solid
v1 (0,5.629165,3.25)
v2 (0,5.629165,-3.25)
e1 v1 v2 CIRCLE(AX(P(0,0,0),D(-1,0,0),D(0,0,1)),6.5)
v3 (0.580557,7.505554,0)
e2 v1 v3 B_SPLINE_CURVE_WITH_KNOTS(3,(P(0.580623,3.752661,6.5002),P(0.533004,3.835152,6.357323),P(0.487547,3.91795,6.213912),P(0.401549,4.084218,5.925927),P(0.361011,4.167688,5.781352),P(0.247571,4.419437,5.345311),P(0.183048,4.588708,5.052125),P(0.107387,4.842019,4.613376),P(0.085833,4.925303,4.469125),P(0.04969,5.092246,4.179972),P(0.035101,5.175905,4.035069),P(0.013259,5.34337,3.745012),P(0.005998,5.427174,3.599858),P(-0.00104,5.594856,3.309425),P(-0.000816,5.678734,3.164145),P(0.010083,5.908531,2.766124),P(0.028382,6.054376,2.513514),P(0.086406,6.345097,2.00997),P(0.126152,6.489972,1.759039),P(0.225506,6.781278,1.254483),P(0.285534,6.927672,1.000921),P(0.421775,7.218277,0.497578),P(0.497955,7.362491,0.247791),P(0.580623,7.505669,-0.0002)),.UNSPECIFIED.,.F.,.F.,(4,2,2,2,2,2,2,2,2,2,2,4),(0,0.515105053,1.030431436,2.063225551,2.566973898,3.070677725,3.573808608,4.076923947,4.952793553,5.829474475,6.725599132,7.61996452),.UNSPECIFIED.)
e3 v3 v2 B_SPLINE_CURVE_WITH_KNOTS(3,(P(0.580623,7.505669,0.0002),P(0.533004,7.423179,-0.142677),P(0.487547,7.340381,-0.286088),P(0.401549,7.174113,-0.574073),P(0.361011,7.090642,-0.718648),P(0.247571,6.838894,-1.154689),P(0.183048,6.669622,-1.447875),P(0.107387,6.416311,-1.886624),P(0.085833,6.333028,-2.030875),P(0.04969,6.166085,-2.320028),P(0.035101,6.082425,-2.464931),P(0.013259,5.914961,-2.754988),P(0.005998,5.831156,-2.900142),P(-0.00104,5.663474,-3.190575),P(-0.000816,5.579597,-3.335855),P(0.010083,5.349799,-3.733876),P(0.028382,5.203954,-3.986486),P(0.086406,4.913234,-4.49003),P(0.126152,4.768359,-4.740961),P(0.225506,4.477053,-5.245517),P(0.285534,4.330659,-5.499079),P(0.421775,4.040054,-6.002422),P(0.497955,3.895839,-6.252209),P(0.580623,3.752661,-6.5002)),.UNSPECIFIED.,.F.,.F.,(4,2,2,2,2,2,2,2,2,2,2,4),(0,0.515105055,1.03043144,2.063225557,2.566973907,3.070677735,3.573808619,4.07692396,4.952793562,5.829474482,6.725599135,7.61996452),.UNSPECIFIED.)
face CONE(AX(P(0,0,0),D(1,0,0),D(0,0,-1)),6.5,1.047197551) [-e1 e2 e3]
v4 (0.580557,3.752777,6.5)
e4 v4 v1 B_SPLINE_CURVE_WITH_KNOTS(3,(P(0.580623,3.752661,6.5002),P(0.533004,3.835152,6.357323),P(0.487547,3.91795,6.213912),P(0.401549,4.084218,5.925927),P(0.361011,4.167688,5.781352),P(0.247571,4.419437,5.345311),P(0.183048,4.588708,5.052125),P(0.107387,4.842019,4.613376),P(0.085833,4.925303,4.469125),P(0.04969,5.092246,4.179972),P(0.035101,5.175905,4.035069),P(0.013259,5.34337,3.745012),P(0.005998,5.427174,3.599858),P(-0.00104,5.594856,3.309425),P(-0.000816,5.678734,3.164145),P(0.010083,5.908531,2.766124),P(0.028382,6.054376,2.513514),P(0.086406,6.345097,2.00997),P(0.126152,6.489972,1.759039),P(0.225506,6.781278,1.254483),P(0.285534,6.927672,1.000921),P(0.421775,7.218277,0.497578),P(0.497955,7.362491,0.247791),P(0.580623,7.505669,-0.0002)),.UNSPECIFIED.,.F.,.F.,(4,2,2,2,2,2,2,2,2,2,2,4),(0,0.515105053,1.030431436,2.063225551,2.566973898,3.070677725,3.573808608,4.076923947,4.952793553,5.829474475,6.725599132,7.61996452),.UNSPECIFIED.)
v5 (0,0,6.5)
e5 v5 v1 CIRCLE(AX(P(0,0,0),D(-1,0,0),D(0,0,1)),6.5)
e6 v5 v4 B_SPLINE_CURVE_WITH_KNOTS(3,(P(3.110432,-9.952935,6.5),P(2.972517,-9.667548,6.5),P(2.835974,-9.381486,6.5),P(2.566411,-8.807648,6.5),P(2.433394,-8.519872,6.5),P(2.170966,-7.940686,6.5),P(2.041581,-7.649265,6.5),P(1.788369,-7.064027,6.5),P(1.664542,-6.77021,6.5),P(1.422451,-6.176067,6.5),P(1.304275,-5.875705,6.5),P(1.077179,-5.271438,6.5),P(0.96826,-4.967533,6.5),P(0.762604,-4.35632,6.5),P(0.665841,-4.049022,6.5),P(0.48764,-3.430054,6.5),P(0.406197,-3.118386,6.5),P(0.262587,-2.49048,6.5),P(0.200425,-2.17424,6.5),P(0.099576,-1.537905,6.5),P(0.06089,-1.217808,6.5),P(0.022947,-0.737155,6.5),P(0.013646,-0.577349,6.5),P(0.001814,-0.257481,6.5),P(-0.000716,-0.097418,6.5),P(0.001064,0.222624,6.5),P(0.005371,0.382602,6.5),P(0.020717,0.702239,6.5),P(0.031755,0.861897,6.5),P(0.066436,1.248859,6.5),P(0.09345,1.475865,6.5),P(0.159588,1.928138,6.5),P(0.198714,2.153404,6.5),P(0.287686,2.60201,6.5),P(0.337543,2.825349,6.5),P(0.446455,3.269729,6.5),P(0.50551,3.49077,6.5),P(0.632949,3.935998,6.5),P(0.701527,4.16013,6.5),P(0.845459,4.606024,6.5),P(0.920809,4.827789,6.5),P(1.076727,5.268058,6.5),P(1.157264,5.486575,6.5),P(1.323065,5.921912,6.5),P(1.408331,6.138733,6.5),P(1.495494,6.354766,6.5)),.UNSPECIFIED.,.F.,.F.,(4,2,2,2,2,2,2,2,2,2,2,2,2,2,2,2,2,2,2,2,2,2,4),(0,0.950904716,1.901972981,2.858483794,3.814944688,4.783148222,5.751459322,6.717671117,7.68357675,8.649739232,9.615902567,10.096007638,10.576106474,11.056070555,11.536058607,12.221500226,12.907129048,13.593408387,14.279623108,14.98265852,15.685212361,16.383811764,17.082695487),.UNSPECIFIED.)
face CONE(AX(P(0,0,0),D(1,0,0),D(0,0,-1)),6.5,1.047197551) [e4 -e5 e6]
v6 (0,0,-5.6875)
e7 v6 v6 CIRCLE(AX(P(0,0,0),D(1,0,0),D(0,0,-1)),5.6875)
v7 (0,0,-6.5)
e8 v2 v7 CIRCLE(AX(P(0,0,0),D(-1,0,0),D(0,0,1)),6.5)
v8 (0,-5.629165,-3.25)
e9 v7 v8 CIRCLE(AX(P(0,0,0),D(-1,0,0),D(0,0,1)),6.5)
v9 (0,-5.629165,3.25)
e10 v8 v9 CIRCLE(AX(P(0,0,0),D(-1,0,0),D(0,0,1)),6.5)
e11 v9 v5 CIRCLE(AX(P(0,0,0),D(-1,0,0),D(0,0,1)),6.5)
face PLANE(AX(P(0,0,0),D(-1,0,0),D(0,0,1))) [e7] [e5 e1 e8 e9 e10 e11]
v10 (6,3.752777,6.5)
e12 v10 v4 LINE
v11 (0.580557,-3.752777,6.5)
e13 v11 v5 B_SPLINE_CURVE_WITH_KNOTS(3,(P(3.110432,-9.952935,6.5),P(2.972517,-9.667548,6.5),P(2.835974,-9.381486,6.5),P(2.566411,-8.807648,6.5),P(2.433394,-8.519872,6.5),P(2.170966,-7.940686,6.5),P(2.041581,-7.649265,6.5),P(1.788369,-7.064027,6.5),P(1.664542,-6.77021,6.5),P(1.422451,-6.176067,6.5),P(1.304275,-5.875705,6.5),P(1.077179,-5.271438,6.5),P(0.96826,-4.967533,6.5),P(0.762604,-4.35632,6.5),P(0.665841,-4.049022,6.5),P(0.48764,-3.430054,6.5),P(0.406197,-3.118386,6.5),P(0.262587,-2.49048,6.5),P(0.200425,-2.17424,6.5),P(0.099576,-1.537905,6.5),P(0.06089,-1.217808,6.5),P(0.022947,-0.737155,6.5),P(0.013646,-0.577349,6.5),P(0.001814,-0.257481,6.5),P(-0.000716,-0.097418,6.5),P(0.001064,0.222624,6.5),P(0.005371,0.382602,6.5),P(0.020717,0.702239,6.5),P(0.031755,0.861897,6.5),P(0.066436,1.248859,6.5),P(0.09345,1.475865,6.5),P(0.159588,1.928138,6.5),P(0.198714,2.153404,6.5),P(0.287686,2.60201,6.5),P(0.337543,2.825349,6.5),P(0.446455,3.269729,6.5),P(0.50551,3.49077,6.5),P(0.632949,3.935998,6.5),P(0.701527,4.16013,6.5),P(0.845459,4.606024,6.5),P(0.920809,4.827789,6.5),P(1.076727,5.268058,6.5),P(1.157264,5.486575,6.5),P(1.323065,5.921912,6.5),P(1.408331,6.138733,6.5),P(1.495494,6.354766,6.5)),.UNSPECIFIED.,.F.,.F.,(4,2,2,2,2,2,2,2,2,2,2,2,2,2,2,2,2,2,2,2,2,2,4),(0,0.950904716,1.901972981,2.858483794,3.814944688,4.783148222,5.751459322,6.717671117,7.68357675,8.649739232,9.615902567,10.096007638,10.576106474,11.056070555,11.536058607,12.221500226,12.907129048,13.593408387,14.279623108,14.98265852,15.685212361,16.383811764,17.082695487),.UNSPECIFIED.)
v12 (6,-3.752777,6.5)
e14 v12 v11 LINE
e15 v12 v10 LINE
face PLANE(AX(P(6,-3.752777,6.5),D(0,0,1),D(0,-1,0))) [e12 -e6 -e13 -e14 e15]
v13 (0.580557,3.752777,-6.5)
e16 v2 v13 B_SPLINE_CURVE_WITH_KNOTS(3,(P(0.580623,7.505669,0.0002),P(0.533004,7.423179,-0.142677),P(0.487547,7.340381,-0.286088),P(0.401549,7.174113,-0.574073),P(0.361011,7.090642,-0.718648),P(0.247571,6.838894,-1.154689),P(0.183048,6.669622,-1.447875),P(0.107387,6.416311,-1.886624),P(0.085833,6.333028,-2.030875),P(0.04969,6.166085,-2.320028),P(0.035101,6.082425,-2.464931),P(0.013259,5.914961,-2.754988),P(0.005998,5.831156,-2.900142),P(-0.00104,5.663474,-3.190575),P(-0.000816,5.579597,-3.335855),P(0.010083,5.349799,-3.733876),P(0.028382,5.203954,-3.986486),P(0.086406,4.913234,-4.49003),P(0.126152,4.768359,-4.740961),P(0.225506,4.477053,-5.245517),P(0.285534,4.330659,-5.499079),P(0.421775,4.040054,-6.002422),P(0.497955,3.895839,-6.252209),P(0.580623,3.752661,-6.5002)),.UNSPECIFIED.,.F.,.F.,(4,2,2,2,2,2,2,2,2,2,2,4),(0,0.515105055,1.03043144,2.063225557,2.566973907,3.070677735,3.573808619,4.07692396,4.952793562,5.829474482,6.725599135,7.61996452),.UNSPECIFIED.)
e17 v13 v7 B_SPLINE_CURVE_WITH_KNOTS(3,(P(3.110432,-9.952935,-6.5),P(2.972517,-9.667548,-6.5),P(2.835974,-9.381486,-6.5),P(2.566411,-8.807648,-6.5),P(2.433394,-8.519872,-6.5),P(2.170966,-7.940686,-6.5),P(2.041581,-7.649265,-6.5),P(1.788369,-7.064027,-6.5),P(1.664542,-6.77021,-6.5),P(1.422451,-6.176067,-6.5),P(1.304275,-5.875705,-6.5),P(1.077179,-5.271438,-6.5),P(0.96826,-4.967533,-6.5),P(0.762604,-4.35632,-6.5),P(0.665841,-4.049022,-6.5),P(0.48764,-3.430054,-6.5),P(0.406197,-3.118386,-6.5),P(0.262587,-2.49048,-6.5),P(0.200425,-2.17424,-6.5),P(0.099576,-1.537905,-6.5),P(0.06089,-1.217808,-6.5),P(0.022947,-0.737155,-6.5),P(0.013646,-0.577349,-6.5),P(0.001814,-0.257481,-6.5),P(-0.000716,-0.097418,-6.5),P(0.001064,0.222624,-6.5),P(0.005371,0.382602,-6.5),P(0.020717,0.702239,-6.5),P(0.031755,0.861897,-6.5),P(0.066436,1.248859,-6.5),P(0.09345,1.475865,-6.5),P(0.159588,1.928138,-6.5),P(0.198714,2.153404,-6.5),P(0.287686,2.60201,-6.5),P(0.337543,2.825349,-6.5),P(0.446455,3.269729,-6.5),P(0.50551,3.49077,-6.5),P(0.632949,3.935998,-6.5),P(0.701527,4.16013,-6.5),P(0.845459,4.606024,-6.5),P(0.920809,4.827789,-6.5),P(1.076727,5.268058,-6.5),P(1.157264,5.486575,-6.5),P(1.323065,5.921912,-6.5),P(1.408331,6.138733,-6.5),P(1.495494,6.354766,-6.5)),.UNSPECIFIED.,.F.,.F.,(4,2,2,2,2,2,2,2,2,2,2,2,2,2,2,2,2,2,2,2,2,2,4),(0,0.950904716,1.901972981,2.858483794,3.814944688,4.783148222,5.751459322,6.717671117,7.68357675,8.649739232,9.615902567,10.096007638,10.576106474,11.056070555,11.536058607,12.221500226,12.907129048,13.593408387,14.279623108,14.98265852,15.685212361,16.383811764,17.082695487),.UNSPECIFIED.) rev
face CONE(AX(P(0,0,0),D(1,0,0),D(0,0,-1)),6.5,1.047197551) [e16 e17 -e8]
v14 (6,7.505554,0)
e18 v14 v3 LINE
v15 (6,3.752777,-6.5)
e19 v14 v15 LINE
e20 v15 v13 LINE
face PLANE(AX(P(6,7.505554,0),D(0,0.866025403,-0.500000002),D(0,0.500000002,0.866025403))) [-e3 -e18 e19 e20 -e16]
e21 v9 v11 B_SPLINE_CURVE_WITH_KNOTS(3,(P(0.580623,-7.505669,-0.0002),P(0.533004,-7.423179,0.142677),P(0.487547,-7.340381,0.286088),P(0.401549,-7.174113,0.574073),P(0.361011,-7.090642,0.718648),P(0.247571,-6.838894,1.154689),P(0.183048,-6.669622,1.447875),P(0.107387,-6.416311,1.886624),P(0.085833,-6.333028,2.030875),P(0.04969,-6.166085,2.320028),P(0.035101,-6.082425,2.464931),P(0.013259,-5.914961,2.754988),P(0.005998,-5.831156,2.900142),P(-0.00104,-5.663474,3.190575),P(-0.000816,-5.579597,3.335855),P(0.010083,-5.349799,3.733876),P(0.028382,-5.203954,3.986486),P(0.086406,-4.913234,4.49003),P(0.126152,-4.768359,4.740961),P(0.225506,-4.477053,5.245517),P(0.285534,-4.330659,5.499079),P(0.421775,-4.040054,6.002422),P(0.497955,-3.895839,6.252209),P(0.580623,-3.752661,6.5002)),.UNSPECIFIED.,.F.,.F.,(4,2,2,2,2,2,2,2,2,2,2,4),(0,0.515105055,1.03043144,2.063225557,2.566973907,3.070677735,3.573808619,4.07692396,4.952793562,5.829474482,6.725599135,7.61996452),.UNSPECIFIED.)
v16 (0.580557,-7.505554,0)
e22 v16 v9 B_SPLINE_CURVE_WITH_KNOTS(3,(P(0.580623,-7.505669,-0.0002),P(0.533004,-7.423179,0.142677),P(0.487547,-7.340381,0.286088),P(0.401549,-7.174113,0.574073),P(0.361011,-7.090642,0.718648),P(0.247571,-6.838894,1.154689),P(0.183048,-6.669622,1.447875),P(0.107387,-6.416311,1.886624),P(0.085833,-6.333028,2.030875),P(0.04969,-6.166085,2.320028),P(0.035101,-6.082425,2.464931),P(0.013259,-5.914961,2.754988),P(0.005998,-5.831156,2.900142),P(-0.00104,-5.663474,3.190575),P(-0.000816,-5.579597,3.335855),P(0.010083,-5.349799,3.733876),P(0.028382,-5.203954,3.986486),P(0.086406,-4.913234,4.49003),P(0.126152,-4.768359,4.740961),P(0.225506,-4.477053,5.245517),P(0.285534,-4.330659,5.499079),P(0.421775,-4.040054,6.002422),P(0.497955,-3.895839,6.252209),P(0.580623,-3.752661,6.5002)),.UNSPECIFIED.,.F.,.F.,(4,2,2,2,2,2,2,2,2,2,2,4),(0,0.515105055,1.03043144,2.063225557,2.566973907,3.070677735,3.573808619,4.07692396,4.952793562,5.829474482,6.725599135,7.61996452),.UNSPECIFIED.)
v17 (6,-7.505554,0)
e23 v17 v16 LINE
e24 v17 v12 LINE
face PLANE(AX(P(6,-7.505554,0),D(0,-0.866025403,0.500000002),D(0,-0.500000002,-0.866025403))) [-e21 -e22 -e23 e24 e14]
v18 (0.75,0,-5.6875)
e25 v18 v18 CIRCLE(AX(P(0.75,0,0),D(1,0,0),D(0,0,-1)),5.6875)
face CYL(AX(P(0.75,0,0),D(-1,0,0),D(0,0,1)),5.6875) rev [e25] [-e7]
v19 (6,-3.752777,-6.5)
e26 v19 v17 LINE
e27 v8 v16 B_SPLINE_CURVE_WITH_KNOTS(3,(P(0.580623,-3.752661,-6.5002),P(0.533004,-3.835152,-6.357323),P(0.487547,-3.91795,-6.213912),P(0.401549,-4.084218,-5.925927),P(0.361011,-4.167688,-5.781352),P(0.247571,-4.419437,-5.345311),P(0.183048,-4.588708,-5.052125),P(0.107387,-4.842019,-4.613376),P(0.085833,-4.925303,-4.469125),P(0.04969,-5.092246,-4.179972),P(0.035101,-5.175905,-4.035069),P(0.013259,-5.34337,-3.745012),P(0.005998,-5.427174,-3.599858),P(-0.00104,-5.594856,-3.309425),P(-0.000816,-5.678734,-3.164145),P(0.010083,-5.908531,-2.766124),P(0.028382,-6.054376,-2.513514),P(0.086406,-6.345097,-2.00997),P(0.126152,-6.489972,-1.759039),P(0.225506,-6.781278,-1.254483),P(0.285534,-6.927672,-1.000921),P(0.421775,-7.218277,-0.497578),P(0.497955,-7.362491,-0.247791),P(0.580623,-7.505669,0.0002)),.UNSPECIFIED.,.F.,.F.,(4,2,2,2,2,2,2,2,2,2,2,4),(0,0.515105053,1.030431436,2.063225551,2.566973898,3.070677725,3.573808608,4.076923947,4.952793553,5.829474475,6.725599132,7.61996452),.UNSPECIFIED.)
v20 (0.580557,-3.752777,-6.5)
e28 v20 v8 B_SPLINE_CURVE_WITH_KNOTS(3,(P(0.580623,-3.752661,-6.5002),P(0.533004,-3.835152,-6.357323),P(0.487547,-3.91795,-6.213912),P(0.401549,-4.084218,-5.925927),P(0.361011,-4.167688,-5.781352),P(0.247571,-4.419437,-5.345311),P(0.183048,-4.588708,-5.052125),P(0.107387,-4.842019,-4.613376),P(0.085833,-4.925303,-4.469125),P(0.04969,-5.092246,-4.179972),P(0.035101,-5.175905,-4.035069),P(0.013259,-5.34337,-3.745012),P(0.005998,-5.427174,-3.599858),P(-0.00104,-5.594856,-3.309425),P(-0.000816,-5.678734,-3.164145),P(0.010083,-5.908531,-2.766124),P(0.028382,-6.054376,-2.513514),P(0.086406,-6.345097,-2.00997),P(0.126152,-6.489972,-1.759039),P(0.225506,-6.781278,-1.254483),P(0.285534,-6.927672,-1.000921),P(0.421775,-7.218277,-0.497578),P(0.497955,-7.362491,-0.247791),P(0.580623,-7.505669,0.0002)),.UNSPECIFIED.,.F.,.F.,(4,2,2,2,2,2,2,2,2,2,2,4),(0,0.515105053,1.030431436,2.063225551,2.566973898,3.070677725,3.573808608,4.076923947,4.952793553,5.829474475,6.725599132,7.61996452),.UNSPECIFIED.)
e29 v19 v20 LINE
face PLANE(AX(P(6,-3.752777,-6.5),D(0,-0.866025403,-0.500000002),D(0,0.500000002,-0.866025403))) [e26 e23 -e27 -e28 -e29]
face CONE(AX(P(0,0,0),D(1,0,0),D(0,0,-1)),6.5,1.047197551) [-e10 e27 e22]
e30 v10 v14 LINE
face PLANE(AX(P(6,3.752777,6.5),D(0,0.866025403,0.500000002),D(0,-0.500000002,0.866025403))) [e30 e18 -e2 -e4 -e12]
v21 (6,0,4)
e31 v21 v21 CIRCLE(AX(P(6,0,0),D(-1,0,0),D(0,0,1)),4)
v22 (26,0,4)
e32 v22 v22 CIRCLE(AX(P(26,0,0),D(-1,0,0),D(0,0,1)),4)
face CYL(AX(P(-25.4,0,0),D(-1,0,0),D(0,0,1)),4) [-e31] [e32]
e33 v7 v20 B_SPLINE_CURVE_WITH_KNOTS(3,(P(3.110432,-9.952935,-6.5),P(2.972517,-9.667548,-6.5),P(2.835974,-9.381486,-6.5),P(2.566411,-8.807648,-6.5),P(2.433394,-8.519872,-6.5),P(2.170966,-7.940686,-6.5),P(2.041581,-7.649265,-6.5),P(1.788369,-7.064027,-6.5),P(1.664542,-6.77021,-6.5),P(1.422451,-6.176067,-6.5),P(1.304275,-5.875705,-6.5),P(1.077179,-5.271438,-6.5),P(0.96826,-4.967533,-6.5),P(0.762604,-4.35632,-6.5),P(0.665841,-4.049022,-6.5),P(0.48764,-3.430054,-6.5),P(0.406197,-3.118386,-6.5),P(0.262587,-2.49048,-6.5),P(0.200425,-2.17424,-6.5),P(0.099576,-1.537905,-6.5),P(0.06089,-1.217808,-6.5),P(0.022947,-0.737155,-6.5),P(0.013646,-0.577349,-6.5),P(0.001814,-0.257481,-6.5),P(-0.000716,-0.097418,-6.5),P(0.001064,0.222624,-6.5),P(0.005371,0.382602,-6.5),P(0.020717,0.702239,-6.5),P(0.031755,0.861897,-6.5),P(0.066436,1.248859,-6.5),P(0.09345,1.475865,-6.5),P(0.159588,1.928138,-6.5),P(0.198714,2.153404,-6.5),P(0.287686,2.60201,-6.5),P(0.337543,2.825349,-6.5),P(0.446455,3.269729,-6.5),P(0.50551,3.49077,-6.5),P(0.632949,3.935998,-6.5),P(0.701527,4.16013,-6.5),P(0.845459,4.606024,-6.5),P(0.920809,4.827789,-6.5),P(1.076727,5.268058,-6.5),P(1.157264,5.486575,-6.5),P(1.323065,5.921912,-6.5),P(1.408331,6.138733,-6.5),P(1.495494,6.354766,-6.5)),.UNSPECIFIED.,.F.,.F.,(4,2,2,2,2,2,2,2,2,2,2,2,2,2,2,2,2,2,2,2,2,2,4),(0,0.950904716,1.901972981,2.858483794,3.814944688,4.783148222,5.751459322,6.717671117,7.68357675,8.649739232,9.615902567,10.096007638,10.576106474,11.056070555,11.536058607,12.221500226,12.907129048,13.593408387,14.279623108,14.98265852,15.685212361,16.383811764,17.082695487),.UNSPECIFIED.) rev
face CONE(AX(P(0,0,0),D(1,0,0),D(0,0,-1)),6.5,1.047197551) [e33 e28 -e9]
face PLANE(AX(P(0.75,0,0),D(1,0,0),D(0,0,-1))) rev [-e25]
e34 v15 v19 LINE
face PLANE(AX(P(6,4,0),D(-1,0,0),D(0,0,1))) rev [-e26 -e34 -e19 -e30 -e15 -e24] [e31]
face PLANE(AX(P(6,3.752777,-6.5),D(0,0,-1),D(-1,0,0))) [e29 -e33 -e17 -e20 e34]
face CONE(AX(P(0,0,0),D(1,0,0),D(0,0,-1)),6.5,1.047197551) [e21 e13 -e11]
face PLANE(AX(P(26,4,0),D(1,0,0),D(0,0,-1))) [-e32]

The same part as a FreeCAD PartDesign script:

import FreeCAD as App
import Part
import Sketcher
from FreeCAD import Vector
Q = App.Units.Quantity


def add_polygon(sketch, points):
    """Adds a closed chain of lines whose ends are joined by coincident constraints."""
    first, n = sketch.GeometryCount, len(points)
    for a, b in zip(points, points[1:] + points[:1]):
        sketch.addGeometry(Part.LineSegment(App.Vector(*a, 0), App.Vector(*b, 0)), False)
    for i in range(n):
        sketch.addConstraint(Sketcher.Constraint("Coincident", first + i, 2, first + (i + 1) % n, 1))

doc = App.newDocument("Part")
body = doc.addObject("PartDesign::Body", "Body")

# Sketch on XY plane
sketch1 = doc.addObject("Sketcher::SketchObject", "Sketch")
body.addObject(sketch1)
sketch1.AttachmentSupport = (doc.XY_Plane, [""])
sketch1.MapMode = "FlatFace"
add_polygon(sketch1, [(6, 4), (6, 7.5), (0.6, 7.5), (0, 6.5), (0, 0), (26, 0), (26, 4)])  # lines 0-6
sketch1.addConstraint([
    Sketcher.Constraint("Vertical", 0),
    Sketcher.Constraint("Horizontal", 1),
    Sketcher.Constraint("Vertical", 3),
    Sketcher.Constraint("Horizontal", 4),
    Sketcher.Constraint("Vertical", 5),
    Sketcher.Constraint("Horizontal", 6),
    Sketcher.Constraint("Coincident", 3, 2, -1, 1),
    Sketcher.Constraint("DistanceX", 4, 1, 4, 2, Q("26 mm")),
    Sketcher.Constraint("DistanceX", 6, 2, 6, 1, Q("20 mm")),
    Sketcher.Constraint("DistanceY", 5, 1, 5, 2, Q("4 mm")),
    Sketcher.Constraint("Angle", 2, Q("-120 deg")),
    Sketcher.Constraint("DistanceY", 3, 2, 3, 1, Q("6.5 mm")),
    Sketcher.Constraint("DistanceX", 1, 2, 1, 1, Q("5.419316 mm")),
])
revolution = doc.addObject("PartDesign::Revolution", "Revolution")
body.addObject(revolution)
revolution.Profile = sketch1
revolution.ReferenceAxis = (sketch1, ["H_Axis"])
revolution.Angle = 360

# Sketch on YZ plane
sketch2 = doc.addObject("Sketcher::SketchObject", "Sketch001")
body.addObject(sketch2)
sketch2.AttachmentSupport = (doc.YZ_Plane, [""])
sketch2.MapMode = "FlatFace"
sketch2.AttachmentOffset = App.Placement(Vector(0, 0, -0.000001), App.Rotation())
sketch2.addGeometry(Part.Circle(Vector(0, 0, 0), Vector(0, 0, 1), 8), False)  # 0
add_polygon(sketch2, [(-4, 6), (4, 6), (8, 0), (4, -6), (-4, -6), (-8, 0)])  # lines 1-6
sketch2.addConstraint([
    Sketcher.Constraint("Horizontal", 1),
    Sketcher.Constraint("Horizontal", 4),
    Sketcher.Constraint("Coincident", 0, 3, -1, 1),
    Sketcher.Constraint("Symmetric", 1, 2, 4, 2, -1, 1),
    Sketcher.Constraint("Symmetric", 2, 2, 5, 2, -1, 1),
    Sketcher.Constraint("PointOnObject", 2, 2, -1),
    Sketcher.Constraint("Parallel", 3, 6),
    Sketcher.Constraint("Vertical", 1, 2, 3, 2),
    Sketcher.Constraint("Angle", 2, Q("-60 deg")),
    Sketcher.Constraint("DistanceY", 3, 2, 1, 2, Q("13 mm")),
    Sketcher.Constraint("Diameter", 0, Q("15.161663 mm")),
    Sketcher.Constraint("DistanceX", 1, 1, 1, 2, Q("7.505554 mm")),
])
pocket1 = doc.addObject("PartDesign::Pocket", "Pocket")
body.addObject(pocket1)
pocket1.Profile = sketch2
pocket1.Length = 6.000001
pocket1.Reversed = True

# Sketch on YZ plane
sketch3 = doc.addObject("Sketcher::SketchObject", "Sketch002")
body.addObject(sketch3)
sketch3.AttachmentSupport = (doc.YZ_Plane, [""])
sketch3.MapMode = "FlatFace"
sketch3.addGeometry(Part.Circle(Vector(0, 0, 0), Vector(0, 0, 1), 6), False)
sketch3.addConstraint([
    Sketcher.Constraint("Coincident", 0, 3, -1, 1),
    Sketcher.Constraint("Diameter", 0, Q("11.375 mm")),
])
pocket2 = doc.addObject("PartDesign::Pocket", "Pocket001")
body.addObject(pocket2)
pocket2.Profile = sketch3
pocket2.Length = 0.75
pocket2.Reversed = True

doc.recompute()
